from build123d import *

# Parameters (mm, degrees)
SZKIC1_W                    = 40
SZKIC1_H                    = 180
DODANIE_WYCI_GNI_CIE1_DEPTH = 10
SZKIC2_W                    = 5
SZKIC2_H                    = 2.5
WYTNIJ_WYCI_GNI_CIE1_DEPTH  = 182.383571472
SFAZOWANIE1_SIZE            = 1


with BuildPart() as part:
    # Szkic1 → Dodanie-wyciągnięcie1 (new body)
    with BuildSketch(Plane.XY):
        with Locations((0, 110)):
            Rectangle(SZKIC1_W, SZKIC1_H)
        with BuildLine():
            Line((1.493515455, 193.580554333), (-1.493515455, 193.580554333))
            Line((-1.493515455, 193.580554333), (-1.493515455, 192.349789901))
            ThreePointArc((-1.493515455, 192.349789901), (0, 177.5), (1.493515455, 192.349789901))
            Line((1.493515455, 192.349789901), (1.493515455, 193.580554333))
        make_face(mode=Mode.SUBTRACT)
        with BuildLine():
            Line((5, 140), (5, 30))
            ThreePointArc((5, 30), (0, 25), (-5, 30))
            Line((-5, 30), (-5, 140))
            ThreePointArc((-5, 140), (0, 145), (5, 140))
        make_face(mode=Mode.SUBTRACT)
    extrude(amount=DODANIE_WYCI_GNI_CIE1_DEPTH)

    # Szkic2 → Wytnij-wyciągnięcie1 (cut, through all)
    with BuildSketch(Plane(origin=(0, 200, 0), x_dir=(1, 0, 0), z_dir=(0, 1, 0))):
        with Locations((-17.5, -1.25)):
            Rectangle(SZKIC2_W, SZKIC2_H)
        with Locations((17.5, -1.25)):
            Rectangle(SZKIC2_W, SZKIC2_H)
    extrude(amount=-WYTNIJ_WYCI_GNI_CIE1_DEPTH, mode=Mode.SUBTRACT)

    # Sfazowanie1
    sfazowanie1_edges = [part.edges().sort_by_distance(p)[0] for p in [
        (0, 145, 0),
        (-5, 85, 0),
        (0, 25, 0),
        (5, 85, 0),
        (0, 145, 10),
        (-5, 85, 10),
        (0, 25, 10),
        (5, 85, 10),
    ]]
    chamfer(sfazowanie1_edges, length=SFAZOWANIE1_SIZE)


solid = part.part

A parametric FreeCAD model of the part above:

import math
import FreeCAD as App
import Part
import Sketcher
from FreeCAD import Vector
Q = App.Units.Quantity


def edges_at(feature, points):
    """Names of the edges that pass closest to the given points."""
    edges = feature.Shape.Edges
    near = lambda p: min(range(len(edges)), key=lambda i: edges[i].distToShape(Part.Vertex(*p))[0])
    return sorted({f"Edge{near(p) + 1}" for p in points})


def add_polygon(sketch, points):
    """Adds a closed chain of lines whose ends are joined by coincident constraints."""
    first, n = sketch.GeometryCount, len(points)
    for a, b in zip(points, points[1:] + points[:1]):
        sketch.addGeometry(Part.LineSegment(App.Vector(*a, 0), App.Vector(*b, 0)), False)
    for i in range(n):
        sketch.addConstraint(Sketcher.Constraint("Coincident", first + i, 2, first + (i + 1) % n, 1))

doc = App.newDocument("Part")
body = doc.addObject("PartDesign::Body", "Body")

sketch1 = doc.addObject("Sketcher::SketchObject", "Sketch")
body.addObject(sketch1)
sketch1.AttachmentSupport = (doc.XY_Plane, [""])
sketch1.MapMode = "FlatFace"
add_polygon(sketch1, [(-20, 200), (-20, 20), (20, 20), (20, 200)])
sketch1.addGeometry(Part.ArcOfCircle(Part.Circle(Vector(0, 140, 0), Vector(0, 0, 1), 5), math.radians(0), math.radians(180)), False)
sketch1.addGeometry(Part.LineSegment(Vector(5, 140, 0), Vector(5, 30, 0)), False)
sketch1.addGeometry(Part.ArcOfCircle(Part.Circle(Vector(0, 30, 0), Vector(0, 0, 1), 5), math.radians(180), math.radians(360)), False)
sketch1.addGeometry(Part.LineSegment(Vector(-5, 30, 0), Vector(-5, 140, 0)), False)
sketch1.addGeometry(Part.LineSegment(Vector(-1.493515, 193.580554, 0), Vector(1.493515, 193.580554, 0)), False)
sketch1.addGeometry(Part.LineSegment(Vector(1.493515, 193.580554, 0), Vector(1.493515, 192.34979, 0)), False)
sketch1.addGeometry(Part.ArcOfCircle(Part.Circle(Vector(0, 185, 0), Vector(0, 0, 1), 7.5), math.radians(101.486404), math.radians(438.513596)), False)
sketch1.addGeometry(Part.LineSegment(Vector(-1.493515, 192.34979, 0), Vector(-1.493515, 193.580554, 0)), False)
sketch1.addConstraint(Sketcher.Constraint("Tangent", 4, 1, 5, 1))
sketch1.addConstraint(Sketcher.Constraint("Tangent", 5, 2, 6, 2))
sketch1.addConstraint(Sketcher.Constraint("Tangent", 6, 1, 7, 1))
sketch1.addConstraint(Sketcher.Constraint("Tangent", 7, 2, 4, 2))
sketch1.addConstraint(Sketcher.Constraint("Coincident", 8, 2, 9, 1))
sketch1.addConstraint(Sketcher.Constraint("Coincident", 9, 2, 10, 2))
sketch1.addConstraint(Sketcher.Constraint("Coincident", 10, 1, 11, 1))
sketch1.addConstraint(Sketcher.Constraint("Coincident", 11, 2, 8, 1))
sketch1.addConstraint(Sketcher.Constraint("Vertical", 0))
sketch1.addConstraint(Sketcher.Constraint("Horizontal", 1))
sketch1.addConstraint(Sketcher.Constraint("Vertical", 2))
sketch1.addConstraint(Sketcher.Constraint("Horizontal", 3))
sketch1.addConstraint(Sketcher.Constraint("Vertical", 5))
sketch1.addConstraint(Sketcher.Constraint("Vertical", 7))
sketch1.addConstraint(Sketcher.Constraint("Horizontal", 8))
sketch1.addConstraint(Sketcher.Constraint("Vertical", 9))
sketch1.addConstraint(Sketcher.Constraint("Vertical", 11))
sketch1.addConstraint(Sketcher.Constraint("Symmetric", 9, 2, 10, 1, -2))
sketch1.addConstraint(Sketcher.Constraint("PointOnObject", 4, 3, -2))
sketch1.addConstraint(Sketcher.Constraint("Radius", 4, Q("5 mm")))
sketch1.addConstraint(Sketcher.Constraint("Radius", 10, Q("7.5 mm")))
sketch1.addConstraint(Sketcher.Constraint("DistanceX", 1, 1, 1, 2, Q("40 mm")))
sketch1.addConstraint(Sketcher.Constraint("DistanceY", 0, 2, 0, 1, Q("180 mm")))
sketch1.addConstraint(Sketcher.Constraint("DistanceY", 5, 2, 5, 1, Q("110 mm")))
sketch1.addConstraint(Sketcher.Constraint("DistanceY", -1, 1, 4, 3, Q("140 mm")))
sketch1.addConstraint(Sketcher.Constraint("DistanceY", -1, 1, 10, 3, Q("185 mm")))
sketch1.addConstraint(Sketcher.Constraint("DistanceX", 0, 2, -1, 1, Q("20 mm")))
sketch1.addConstraint(Sketcher.Constraint("DistanceY", -1, 1, 0, 2, Q("20 mm")))
sketch1.addConstraint(Sketcher.Constraint("DistanceX", 8, 1, 8, 2, Q("2.987031 mm")))
sketch1.addConstraint(Sketcher.Constraint("DistanceY", 9, 2, 9, 1, Q("1.230764 mm")))
pad1 = doc.addObject("PartDesign::Pad", "Pad")
body.addObject(pad1)
pad1.Profile = sketch1
pad1.Length = 10

sketch2 = doc.addObject("Sketcher::SketchObject", "Sketch001")
body.addObject(sketch2)
sketch2.AttachmentSupport = (doc.XZ_Plane, [""])
sketch2.MapMode = "FlatFace"
sketch2.AttachmentOffset = App.Placement(Vector(0, 0, -200), App.Rotation())
add_polygon(sketch2, [(-20, 0), (-20, 2.5), (-15, 2.5), (-15, 0)])
add_polygon(sketch2, [(15, 0), (15, 2.5), (20, 2.5), (20, 0)])
sketch2.addConstraint(Sketcher.Constraint("Vertical", 0))
sketch2.addConstraint(Sketcher.Constraint("Horizontal", 1))
sketch2.addConstraint(Sketcher.Constraint("Vertical", 2))
sketch2.addConstraint(Sketcher.Constraint("Horizontal", 3))
sketch2.addConstraint(Sketcher.Constraint("Vertical", 4))
sketch2.addConstraint(Sketcher.Constraint("Horizontal", 5))
sketch2.addConstraint(Sketcher.Constraint("Vertical", 6))
sketch2.addConstraint(Sketcher.Constraint("Horizontal", 7))
sketch2.addConstraint(Sketcher.Constraint("Symmetric", 3, 2, 6, 2, -1, 1))
sketch2.addConstraint(Sketcher.Constraint("Symmetric", 1, 2, 4, 2, -2))
sketch2.addConstraint(Sketcher.Constraint("PointOnObject", 2, 2, -1))
sketch2.addConstraint(Sketcher.Constraint("DistanceX", 1, 1, 1, 2, Q("5 mm")))
sketch2.addConstraint(Sketcher.Constraint("DistanceY", 0, 1, 0, 2, Q("2.5 mm")))
sketch2.addConstraint(Sketcher.Constraint("DistanceX", 0, 2, -1, 1, Q("20 mm")))
pocket1 = doc.addObject("PartDesign::Pocket", "Pocket")
body.addObject(pocket1)
pocket1.Profile = sketch2
pocket1.Type = "ThroughAll"
pocket1.Reversed = True
doc.recompute()

chamfer = doc.addObject("PartDesign::Chamfer", "Chamfer")
body.addObject(chamfer)
chamfer.Base = (pocket1, edges_at(pocket1, [
    (0, 145, 0),
    (-5, 85, 0),
    (0, 25, 0),
    (5, 85, 0),
    (0, 145, 10),
    (-5, 85, 10),
    (0, 25, 10),
    (5, 85, 10),
]))
chamfer.Size = 1

doc.recompute()
